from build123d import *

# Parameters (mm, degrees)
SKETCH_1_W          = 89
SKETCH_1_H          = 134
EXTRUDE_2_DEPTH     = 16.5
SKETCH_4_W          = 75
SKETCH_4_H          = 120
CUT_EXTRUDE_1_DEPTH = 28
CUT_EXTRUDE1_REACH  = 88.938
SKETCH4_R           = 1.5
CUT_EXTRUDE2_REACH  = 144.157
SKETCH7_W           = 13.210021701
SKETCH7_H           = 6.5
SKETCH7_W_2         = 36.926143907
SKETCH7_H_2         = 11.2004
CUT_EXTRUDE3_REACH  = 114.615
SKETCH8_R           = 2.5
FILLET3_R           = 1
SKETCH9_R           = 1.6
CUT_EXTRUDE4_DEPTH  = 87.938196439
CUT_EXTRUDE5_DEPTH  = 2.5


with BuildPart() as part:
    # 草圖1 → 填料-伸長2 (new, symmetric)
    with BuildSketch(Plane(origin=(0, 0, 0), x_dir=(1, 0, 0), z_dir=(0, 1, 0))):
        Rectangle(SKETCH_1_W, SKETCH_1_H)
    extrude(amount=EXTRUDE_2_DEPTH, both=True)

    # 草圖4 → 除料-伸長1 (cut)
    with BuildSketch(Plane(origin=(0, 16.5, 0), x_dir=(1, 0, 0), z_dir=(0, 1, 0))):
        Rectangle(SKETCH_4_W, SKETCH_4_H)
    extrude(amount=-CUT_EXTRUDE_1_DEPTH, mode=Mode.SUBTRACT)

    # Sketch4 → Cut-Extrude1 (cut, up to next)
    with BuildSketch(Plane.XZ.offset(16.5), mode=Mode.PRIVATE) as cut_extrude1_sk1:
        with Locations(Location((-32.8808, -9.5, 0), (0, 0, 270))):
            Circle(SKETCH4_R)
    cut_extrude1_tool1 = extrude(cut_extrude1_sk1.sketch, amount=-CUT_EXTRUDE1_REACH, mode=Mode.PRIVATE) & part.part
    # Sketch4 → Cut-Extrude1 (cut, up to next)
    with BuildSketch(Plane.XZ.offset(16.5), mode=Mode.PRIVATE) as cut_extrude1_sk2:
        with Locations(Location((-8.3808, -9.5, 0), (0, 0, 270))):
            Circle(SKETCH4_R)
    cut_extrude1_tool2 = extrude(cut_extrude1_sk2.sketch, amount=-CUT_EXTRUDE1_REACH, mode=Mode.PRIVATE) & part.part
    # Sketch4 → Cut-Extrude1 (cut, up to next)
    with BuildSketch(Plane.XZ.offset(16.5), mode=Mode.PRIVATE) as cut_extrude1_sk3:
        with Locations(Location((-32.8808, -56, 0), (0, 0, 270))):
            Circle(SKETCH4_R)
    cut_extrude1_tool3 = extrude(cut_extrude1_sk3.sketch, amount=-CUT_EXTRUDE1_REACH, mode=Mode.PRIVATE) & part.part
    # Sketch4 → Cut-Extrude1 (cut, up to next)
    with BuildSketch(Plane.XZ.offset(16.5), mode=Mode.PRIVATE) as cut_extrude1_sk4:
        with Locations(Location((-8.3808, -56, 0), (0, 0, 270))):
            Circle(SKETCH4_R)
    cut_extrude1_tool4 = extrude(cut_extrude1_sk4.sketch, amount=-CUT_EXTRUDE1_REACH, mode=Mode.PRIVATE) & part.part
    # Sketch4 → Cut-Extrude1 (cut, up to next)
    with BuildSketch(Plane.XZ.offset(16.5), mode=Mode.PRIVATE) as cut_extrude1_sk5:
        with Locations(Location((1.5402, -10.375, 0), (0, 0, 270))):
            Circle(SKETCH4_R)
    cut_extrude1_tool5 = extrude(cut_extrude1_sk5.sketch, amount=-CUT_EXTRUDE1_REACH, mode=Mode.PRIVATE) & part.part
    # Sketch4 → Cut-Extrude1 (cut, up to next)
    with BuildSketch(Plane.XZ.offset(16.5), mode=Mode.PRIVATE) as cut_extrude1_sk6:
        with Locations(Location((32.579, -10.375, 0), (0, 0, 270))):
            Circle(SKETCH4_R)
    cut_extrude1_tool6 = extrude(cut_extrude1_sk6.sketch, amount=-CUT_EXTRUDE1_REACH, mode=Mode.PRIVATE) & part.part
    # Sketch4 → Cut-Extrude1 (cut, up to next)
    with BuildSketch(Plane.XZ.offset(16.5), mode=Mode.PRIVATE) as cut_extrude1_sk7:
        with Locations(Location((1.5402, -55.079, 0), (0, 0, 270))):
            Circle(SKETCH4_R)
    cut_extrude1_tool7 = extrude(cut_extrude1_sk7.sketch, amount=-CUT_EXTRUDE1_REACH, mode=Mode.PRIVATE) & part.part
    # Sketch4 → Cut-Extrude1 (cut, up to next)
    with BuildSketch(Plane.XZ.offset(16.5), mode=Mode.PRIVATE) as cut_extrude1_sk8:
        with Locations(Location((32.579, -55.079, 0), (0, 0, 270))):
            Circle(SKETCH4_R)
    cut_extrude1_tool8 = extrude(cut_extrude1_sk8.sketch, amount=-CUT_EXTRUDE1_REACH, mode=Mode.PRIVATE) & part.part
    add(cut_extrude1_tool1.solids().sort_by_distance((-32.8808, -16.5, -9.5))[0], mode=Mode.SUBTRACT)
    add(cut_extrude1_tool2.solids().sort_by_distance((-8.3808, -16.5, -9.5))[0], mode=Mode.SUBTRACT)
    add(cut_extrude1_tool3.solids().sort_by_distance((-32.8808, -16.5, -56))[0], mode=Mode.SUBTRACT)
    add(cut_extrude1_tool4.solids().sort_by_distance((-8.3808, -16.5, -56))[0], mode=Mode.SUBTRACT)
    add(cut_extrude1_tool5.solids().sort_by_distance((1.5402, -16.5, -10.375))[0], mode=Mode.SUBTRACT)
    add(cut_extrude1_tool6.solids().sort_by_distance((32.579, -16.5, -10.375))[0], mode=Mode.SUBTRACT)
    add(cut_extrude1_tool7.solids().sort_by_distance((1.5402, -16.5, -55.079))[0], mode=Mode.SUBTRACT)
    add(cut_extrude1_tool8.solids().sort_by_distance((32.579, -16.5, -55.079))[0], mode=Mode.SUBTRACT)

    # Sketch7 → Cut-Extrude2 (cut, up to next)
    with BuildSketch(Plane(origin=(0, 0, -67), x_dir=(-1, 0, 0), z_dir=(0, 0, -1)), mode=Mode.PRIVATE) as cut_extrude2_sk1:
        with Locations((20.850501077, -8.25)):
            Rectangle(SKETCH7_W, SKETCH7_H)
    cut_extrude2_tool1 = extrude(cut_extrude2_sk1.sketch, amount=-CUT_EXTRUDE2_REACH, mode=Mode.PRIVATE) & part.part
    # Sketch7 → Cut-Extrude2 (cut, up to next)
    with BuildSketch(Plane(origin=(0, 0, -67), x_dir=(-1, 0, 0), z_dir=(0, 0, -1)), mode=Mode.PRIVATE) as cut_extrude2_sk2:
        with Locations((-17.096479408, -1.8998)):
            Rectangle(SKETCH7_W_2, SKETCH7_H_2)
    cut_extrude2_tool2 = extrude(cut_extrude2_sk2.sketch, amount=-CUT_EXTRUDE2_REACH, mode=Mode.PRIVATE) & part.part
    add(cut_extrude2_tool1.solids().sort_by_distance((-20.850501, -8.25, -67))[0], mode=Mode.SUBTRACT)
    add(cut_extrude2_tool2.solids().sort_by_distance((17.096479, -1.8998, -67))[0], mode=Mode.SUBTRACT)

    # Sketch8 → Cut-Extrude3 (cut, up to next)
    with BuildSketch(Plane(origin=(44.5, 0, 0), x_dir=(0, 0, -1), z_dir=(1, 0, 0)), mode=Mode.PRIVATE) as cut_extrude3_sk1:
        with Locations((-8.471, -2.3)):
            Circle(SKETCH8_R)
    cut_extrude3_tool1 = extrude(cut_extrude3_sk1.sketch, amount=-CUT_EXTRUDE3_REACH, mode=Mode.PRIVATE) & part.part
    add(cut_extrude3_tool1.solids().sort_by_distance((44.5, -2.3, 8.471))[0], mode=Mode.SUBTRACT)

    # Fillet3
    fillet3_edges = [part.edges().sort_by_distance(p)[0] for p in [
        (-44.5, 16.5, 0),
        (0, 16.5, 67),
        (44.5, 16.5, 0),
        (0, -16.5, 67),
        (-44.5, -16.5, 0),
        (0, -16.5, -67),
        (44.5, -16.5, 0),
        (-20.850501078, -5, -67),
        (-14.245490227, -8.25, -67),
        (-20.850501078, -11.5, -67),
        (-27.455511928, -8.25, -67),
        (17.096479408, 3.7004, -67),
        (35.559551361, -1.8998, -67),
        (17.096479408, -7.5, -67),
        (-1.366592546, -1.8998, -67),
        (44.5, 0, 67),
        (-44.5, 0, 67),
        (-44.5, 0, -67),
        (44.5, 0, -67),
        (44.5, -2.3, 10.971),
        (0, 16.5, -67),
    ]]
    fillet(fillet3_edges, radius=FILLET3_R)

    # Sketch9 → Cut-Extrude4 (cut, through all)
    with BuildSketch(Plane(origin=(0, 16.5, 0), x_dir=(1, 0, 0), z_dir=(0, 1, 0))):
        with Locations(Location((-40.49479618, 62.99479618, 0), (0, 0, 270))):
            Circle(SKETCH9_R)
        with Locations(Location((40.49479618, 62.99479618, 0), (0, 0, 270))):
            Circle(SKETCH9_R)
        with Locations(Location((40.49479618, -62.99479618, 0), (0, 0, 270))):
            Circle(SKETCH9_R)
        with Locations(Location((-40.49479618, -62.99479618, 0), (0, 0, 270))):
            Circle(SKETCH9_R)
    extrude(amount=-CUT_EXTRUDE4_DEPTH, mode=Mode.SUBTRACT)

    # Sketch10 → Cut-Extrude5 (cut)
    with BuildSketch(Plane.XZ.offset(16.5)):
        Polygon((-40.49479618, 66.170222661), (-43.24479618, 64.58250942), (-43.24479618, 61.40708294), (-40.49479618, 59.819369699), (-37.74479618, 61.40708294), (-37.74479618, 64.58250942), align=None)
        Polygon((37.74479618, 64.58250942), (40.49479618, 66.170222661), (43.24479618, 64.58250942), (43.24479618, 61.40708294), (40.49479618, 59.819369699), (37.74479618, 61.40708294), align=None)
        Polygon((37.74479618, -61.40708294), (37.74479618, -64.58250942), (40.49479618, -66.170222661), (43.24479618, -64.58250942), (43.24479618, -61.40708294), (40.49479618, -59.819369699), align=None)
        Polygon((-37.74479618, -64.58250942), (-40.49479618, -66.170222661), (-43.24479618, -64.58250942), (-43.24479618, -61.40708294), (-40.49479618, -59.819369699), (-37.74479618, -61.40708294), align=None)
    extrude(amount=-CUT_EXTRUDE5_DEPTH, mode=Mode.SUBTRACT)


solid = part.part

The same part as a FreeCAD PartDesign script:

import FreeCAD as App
import Part
import Sketcher

V = App.Vector
Q = App.Units.Quantity


def edges_at(feature, points):
    """Names of the edges that pass closest to the given points."""
    edges = feature.Shape.Edges
    near = lambda p: min(range(len(edges)), key=lambda i: edges[i].distToShape(Part.Vertex(*p))[0])
    return sorted({f"Edge{near(p) + 1}" for p in points})


def add_polygon(sketch, points):
    """Adds a closed chain of lines whose ends are joined by coincident constraints."""
    first, n = sketch.GeometryCount, len(points)
    for a, b in zip(points, points[1:] + points[:1]):
        sketch.addGeometry(Part.LineSegment(App.Vector(*a, 0), App.Vector(*b, 0)), False)
    for i in range(n):
        sketch.addConstraint(Sketcher.Constraint("Coincident", first + i, 2, first + (i + 1) % n, 1))

doc = App.newDocument("Part")
body = doc.addObject("PartDesign::Body", "Body")

sketch1 = doc.addObject("Sketcher::SketchObject", "Sketch")
body.addObject(sketch1)
sketch1.AttachmentSupport = (doc.XZ_Plane, [""])
sketch1.MapMode = "FlatFace"
add_polygon(sketch1, [(-44.5, -67), (-44.5, 67), (44.5, 67), (44.5, -67)])
sketch1.addConstraint(Sketcher.Constraint("Vertical", 0))
sketch1.addConstraint(Sketcher.Constraint("Horizontal", 1))
sketch1.addConstraint(Sketcher.Constraint("Vertical", 2))
sketch1.addConstraint(Sketcher.Constraint("Horizontal", 3))
sketch1.addConstraint(Sketcher.Constraint("Symmetric", 0, 2, 2, 2, -1, 1))
sketch1.addConstraint(Sketcher.Constraint("DistanceX", 1, 1, 1, 2, 89.0))
sketch1.addConstraint(Sketcher.Constraint("DistanceY", 0, 1, 0, 2, 134.0))
pad1 = doc.addObject("PartDesign::Pad", "Pad")
body.addObject(pad1)
pad1.Profile = sketch1
pad1.Length = 33
pad1.Midplane = True

sketch2 = doc.addObject("Sketcher::SketchObject", "Sketch001")
body.addObject(sketch2)
sketch2.AttachmentSupport = (doc.XZ_Plane, [""])
sketch2.MapMode = "FlatFace"
sketch2.AttachmentOffset = App.Placement(V(0, 0, -16.5), App.Rotation())
add_polygon(sketch2, [(-37.5, -60), (-37.5, 60), (37.5, 60), (37.5, -60)])
sketch2.addConstraint(Sketcher.Constraint("Vertical", 0))
sketch2.addConstraint(Sketcher.Constraint("Horizontal", 1))
sketch2.addConstraint(Sketcher.Constraint("Vertical", 2))
sketch2.addConstraint(Sketcher.Constraint("Horizontal", 3))
sketch2.addConstraint(Sketcher.Constraint("Symmetric", 0, 2, 2, 2, -1, 1))
sketch2.addConstraint(Sketcher.Constraint("DistanceX", 1, 1, 1, 2, 75.0))
sketch2.addConstraint(Sketcher.Constraint("DistanceY", 0, 1, 0, 2, 120.0))
pocket1 = doc.addObject("PartDesign::Pocket", "Pocket")
body.addObject(pocket1)
pocket1.Profile = sketch2
pocket1.Length = 28
pocket1.Reversed = True

sketch3 = doc.addObject("Sketcher::SketchObject", "Sketch002")
body.addObject(sketch3)
sketch3.AttachmentSupport = (doc.XZ_Plane, [""])
sketch3.MapMode = "FlatFace"
sketch3.AttachmentOffset = App.Placement(V(0, 0, 16.5), App.Rotation())
sketch3.addGeometry(Part.Circle(V(-32.8808, -9.5, 0), V(0, 0, 1), 1.5), False)
sketch3.addConstraint(Sketcher.Constraint("Diameter", 0, 3.0))
sketch3.addConstraint(Sketcher.Constraint("DistanceY", 0, 3, -1, 1, 9.5))
sketch3.addConstraint(Sketcher.Constraint("DistanceX", 0, 3, -1, 1, 32.8808))
pocket2 = doc.addObject("PartDesign::Pocket", "Pocket001")
body.addObject(pocket2)
pocket2.Profile = sketch3
pocket2.Type = "UpToFirst"

sketch4 = doc.addObject("Sketcher::SketchObject", "Sketch003")
body.addObject(sketch4)
sketch4.AttachmentSupport = (doc.XZ_Plane, [""])
sketch4.MapMode = "FlatFace"
sketch4.AttachmentOffset = App.Placement(V(0, 0, 16.5), App.Rotation())
sketch4.addGeometry(Part.Circle(V(-8.3808, -9.5, 0), V(0, 0, 1), 1.5), False)
sketch4.addConstraint(Sketcher.Constraint("Diameter", 0, 3.0))
sketch4.addConstraint(Sketcher.Constraint("DistanceY", 0, 3, -1, 1, 9.5))
sketch4.addConstraint(Sketcher.Constraint("DistanceX", 0, 3, -1, 1, 8.3808))
pocket3 = doc.addObject("PartDesign::Pocket", "Pocket002")
body.addObject(pocket3)
pocket3.Profile = sketch4
pocket3.Type = "UpToFirst"

sketch5 = doc.addObject("Sketcher::SketchObject", "Sketch004")
body.addObject(sketch5)
sketch5.AttachmentSupport = (doc.XZ_Plane, [""])
sketch5.MapMode = "FlatFace"
sketch5.AttachmentOffset = App.Placement(V(0, 0, 16.5), App.Rotation())
sketch5.addGeometry(Part.Circle(V(-32.8808, -56, 0), V(0, 0, 1), 1.5), False)
sketch5.addConstraint(Sketcher.Constraint("Diameter", 0, 3.0))
sketch5.addConstraint(Sketcher.Constraint("DistanceY", 0, 3, -1, 1, 56.0))
sketch5.addConstraint(Sketcher.Constraint("DistanceX", 0, 3, -1, 1, 32.8808))
pocket4 = doc.addObject("PartDesign::Pocket", "Pocket003")
body.addObject(pocket4)
pocket4.Profile = sketch5
pocket4.Type = "UpToFirst"

sketch6 = doc.addObject("Sketcher::SketchObject", "Sketch005")
body.addObject(sketch6)
sketch6.AttachmentSupport = (doc.XZ_Plane, [""])
sketch6.MapMode = "FlatFace"
sketch6.AttachmentOffset = App.Placement(V(0, 0, 16.5), App.Rotation())
sketch6.addGeometry(Part.Circle(V(-8.3808, -56, 0), V(0, 0, 1), 1.5), False)
sketch6.addConstraint(Sketcher.Constraint("Diameter", 0, 3.0))
sketch6.addConstraint(Sketcher.Constraint("DistanceY", 0, 3, -1, 1, 56.0))
sketch6.addConstraint(Sketcher.Constraint("DistanceX", 0, 3, -1, 1, 8.3808))
pocket5 = doc.addObject("PartDesign::Pocket", "Pocket004")
body.addObject(pocket5)
pocket5.Profile = sketch6
pocket5.Type = "UpToFirst"

sketch7 = doc.addObject("Sketcher::SketchObject", "Sketch006")
body.addObject(sketch7)
sketch7.AttachmentSupport = (doc.XZ_Plane, [""])
sketch7.MapMode = "FlatFace"
sketch7.AttachmentOffset = App.Placement(V(0, 0, 16.5), App.Rotation())
sketch7.addGeometry(Part.Circle(V(1.5402, -10.375, 0), V(0, 0, 1), 1.5), False)
sketch7.addConstraint(Sketcher.Constraint("Diameter", 0, 3.0))
sketch7.addConstraint(Sketcher.Constraint("DistanceY", 0, 3, -1, 1, 10.375))
sketch7.addConstraint(Sketcher.Constraint("DistanceX", -1, 1, 0, 3, 1.5402))
pocket6 = doc.addObject("PartDesign::Pocket", "Pocket005")
body.addObject(pocket6)
pocket6.Profile = sketch7
pocket6.Type = "UpToFirst"

sketch8 = doc.addObject("Sketcher::SketchObject", "Sketch007")
body.addObject(sketch8)
sketch8.AttachmentSupport = (doc.XZ_Plane, [""])
sketch8.MapMode = "FlatFace"
sketch8.AttachmentOffset = App.Placement(V(0, 0, 16.5), App.Rotation())
sketch8.addGeometry(Part.Circle(V(32.579, -10.375, 0), V(0, 0, 1), 1.5), False)
sketch8.addConstraint(Sketcher.Constraint("Diameter", 0, 3.0))
sketch8.addConstraint(Sketcher.Constraint("DistanceX", -1, 1, 0, 3, 32.579))
sketch8.addConstraint(Sketcher.Constraint("DistanceY", 0, 3, -1, 1, 10.375))
pocket7 = doc.addObject("PartDesign::Pocket", "Pocket006")
body.addObject(pocket7)
pocket7.Profile = sketch8
pocket7.Type = "UpToFirst"

sketch9 = doc.addObject("Sketcher::SketchObject", "Sketch008")
body.addObject(sketch9)
sketch9.AttachmentSupport = (doc.XZ_Plane, [""])
sketch9.MapMode = "FlatFace"
sketch9.AttachmentOffset = App.Placement(V(0, 0, 16.5), App.Rotation())
sketch9.addGeometry(Part.Circle(V(1.5402, -55.079, 0), V(0, 0, 1), 1.5), False)
sketch9.addConstraint(Sketcher.Constraint("Diameter", 0, 3.0))
sketch9.addConstraint(Sketcher.Constraint("DistanceY", 0, 3, -1, 1, 55.079))
sketch9.addConstraint(Sketcher.Constraint("DistanceX", -1, 1, 0, 3, 1.5402))
pocket8 = doc.addObject("PartDesign::Pocket", "Pocket007")
body.addObject(pocket8)
pocket8.Profile = sketch9
pocket8.Type = "UpToFirst"

sketch10 = doc.addObject("Sketcher::SketchObject", "Sketch009")
body.addObject(sketch10)
sketch10.AttachmentSupport = (doc.XZ_Plane, [""])
sketch10.MapMode = "FlatFace"
sketch10.AttachmentOffset = App.Placement(V(0, 0, 16.5), App.Rotation())
sketch10.addGeometry(Part.Circle(V(32.579, -55.079, 0), V(0, 0, 1), 1.5), False)
sketch10.addConstraint(Sketcher.Constraint("Diameter", 0, 3.0))
sketch10.addConstraint(Sketcher.Constraint("DistanceX", -1, 1, 0, 3, 32.579))
sketch10.addConstraint(Sketcher.Constraint("DistanceY", 0, 3, -1, 1, 55.079))
pocket9 = doc.addObject("PartDesign::Pocket", "Pocket008")
body.addObject(pocket9)
pocket9.Profile = sketch10
pocket9.Type = "UpToFirst"

sketch11 = doc.addObject("Sketcher::SketchObject", "Sketch010")
body.addObject(sketch11)
sketch11.AttachmentSupport = (doc.XY_Plane, [""])
sketch11.MapMode = "FlatFace"
sketch11.AttachmentOffset = App.Placement(V(0, 0, -67), App.Rotation())
add_polygon(sketch11, [(-14.24549, -5), (-14.24549, -11.5), (-27.455512, -11.5), (-27.455512, -5)])
sketch11.addConstraint(Sketcher.Constraint("Vertical", 0))
sketch11.addConstraint(Sketcher.Constraint("Horizontal", 1))
sketch11.addConstraint(Sketcher.Constraint("Vertical", 2))
sketch11.addConstraint(Sketcher.Constraint("Horizontal", 3))
sketch11.addConstraint(Sketcher.Constraint("DistanceY", 0, 2, 0, 1, 6.5))
sketch11.addConstraint(Sketcher.Constraint("DistanceY", 2, 2, -1, 1, 5.0))
sketch11.addConstraint(Sketcher.Constraint("DistanceX", 1, 2, 1, 1, 13.210022))
sketch11.addConstraint(Sketcher.Constraint("DistanceX", 0, 2, -1, 1, 14.24549))
pocket10 = doc.addObject("PartDesign::Pocket", "Pocket009")
body.addObject(pocket10)
pocket10.Profile = sketch11
pocket10.Type = "UpToFirst"
pocket10.Reversed = True

sketch12 = doc.addObject("Sketcher::SketchObject", "Sketch011")
body.addObject(sketch12)
sketch12.AttachmentSupport = (doc.XY_Plane, [""])
sketch12.MapMode = "FlatFace"
sketch12.AttachmentOffset = App.Placement(V(0, 0, -67), App.Rotation())
add_polygon(sketch12, [(35.559551, 3.7004), (35.559551, -7.5), (-1.366593, -7.5), (-1.366593, 3.7004)])
sketch12.addConstraint(Sketcher.Constraint("Vertical", 0))
sketch12.addConstraint(Sketcher.Constraint("Horizontal", 1))
sketch12.addConstraint(Sketcher.Constraint("Vertical", 2))
sketch12.addConstraint(Sketcher.Constraint("Horizontal", 3))
sketch12.addConstraint(Sketcher.Constraint("DistanceY", 0, 2, -1, 1, 7.5))
sketch12.addConstraint(Sketcher.Constraint("DistanceY", 0, 2, 0, 1, 11.2004))
sketch12.addConstraint(Sketcher.Constraint("DistanceX", 1, 2, 1, 1, 36.926144))
sketch12.addConstraint(Sketcher.Constraint("DistanceX", -1, 1, 0, 2, 35.559551))
pocket11 = doc.addObject("PartDesign::Pocket", "Pocket010")
body.addObject(pocket11)
pocket11.Profile = sketch12
pocket11.Type = "UpToFirst"
pocket11.Reversed = True

sketch13 = doc.addObject("Sketcher::SketchObject", "Sketch012")
body.addObject(sketch13)
sketch13.AttachmentSupport = (doc.YZ_Plane, [""])
sketch13.MapMode = "FlatFace"
sketch13.AttachmentOffset = App.Placement(V(0, 0, 44.5), App.Rotation())
sketch13.addGeometry(Part.Circle(V(-2.3, 8.471, 0), V(0, 0, 1), 2.5), False)
sketch13.addConstraint(Sketcher.Constraint("Diameter", 0, 5.0))
sketch13.addConstraint(Sketcher.Constraint("DistanceX", 0, 3, -1, 1, 2.3))
sketch13.addConstraint(Sketcher.Constraint("DistanceY", -1, 1, 0, 3, 8.471))
pocket12 = doc.addObject("PartDesign::Pocket", "Pocket011")
body.addObject(pocket12)
pocket12.Profile = sketch13
pocket12.Type = "UpToFirst"
doc.recompute()

fillet = doc.addObject("PartDesign::Fillet", "Fillet")
body.addObject(fillet)
fillet.Base = (pocket12, edges_at(pocket12, [
    (-44.5, 16.5, 0),
    (0, 16.5, 67),
    (44.5, 16.5, 0),
    (0, -16.5, 67),
    (-44.5, -16.5, 0),
    (0, -16.5, -67),
    (44.5, -16.5, 0),
    (-20.851, -5, -67),
    (-14.245, -8.25, -67),
    (-20.851, -11.5, -67),
    (-27.456, -8.25, -67),
    (17.096, 3.7, -67),
    (35.56, -1.9, -67),
    (17.096, -7.5, -67),
    (-1.367, -1.9, -67),
    (44.5, 0, 67),
    (-44.5, 0, 67),
    (-44.5, 0, -67),
    (44.5, 0, -67),
    (44.5, -2.3, 10.971),
    (0, 16.5, -67),
]))
fillet.Radius = 1

sketch14 = doc.addObject("Sketcher::SketchObject", "Sketch013")
body.addObject(sketch14)
sketch14.AttachmentSupport = (doc.XZ_Plane, [""])
sketch14.MapMode = "FlatFace"
sketch14.AttachmentOffset = App.Placement(V(0, 0, -16.5), App.Rotation())
sketch14.addGeometry(Part.Circle(V(-40.494796, -62.994796, 0), V(0, 0, 1), 1.6), False)
sketch14.addGeometry(Part.Circle(V(40.494796, -62.994796, 0), V(0, 0, 1), 1.6), False)
sketch14.addGeometry(Part.Circle(V(40.494796, 62.994796, 0), V(0, 0, 1), 1.6), False)
sketch14.addGeometry(Part.Circle(V(-40.494796, 62.994796, 0), V(0, 0, 1), 1.6), False)
sketch14.addConstraint(Sketcher.Constraint("Equal", 0, 1))
sketch14.addConstraint(Sketcher.Constraint("Equal", 1, 2))
sketch14.addConstraint(Sketcher.Constraint("Equal", 2, 3))
sketch14.addConstraint(Sketcher.Constraint("Symmetric", 0, 3, 2, 3, -1, 1))
sketch14.addConstraint(Sketcher.Constraint("Symmetric", 1, 3, 3, 3, -1, 1))
sketch14.addConstraint(Sketcher.Constraint("Symmetric", 0, 3, 1, 3, -2))
sketch14.addConstraint(Sketcher.Constraint("Diameter", 0, 3.2))
sketch14.addConstraint(Sketcher.Constraint("DistanceX", 0, 3, -1, 1, 40.494796))
sketch14.addConstraint(Sketcher.Constraint("DistanceY", 0, 3, -1, 1, 62.994796))
pocket13 = doc.addObject("PartDesign::Pocket", "Pocket012")
body.addObject(pocket13)
pocket13.Profile = sketch14
pocket13.Type = "ThroughAll"
pocket13.Reversed = True

sketch15 = doc.addObject("Sketcher::SketchObject", "Sketch014")
body.addObject(sketch15)
sketch15.AttachmentSupport = (doc.XZ_Plane, [""])
sketch15.MapMode = "FlatFace"
sketch15.AttachmentOffset = App.Placement(V(0, 0, 16.5), App.Rotation())
add_polygon(sketch15, [(-40.494796, 66.170223), (-43.244796, 64.582509), (-43.244796, 61.407083), (-40.494796, 59.81937), (-37.744796, 61.407083), (-37.744796, 64.582509)])
add_polygon(sketch15, [(40.494796, 66.170223), (37.744796, 64.582509), (37.744796, 61.407083), (40.494796, 59.81937), (43.244796, 61.407083), (43.244796, 64.582509)])
add_polygon(sketch15, [(37.744796, -61.407083), (37.744796, -64.582509), (40.494796, -66.170223), (43.244796, -64.582509), (43.244796, -61.407083), (40.494796, -59.81937)])
add_polygon(sketch15, [(-40.494796, -66.170223), (-37.744796, -64.582509), (-37.744796, -61.407083), (-40.494796, -59.81937), (-43.244796, -61.407083), (-43.244796, -64.582509)])
sketch15.addConstraint(Sketcher.Constraint("Vertical", 1))
sketch15.addConstraint(Sketcher.Constraint("Vertical", 4))
sketch15.addConstraint(Sketcher.Constraint("Vertical", 7))
sketch15.addConstraint(Sketcher.Constraint("Vertical", 10))
sketch15.addConstraint(Sketcher.Constraint("Vertical", 12))
sketch15.addConstraint(Sketcher.Constraint("Vertical", 15))
sketch15.addConstraint(Sketcher.Constraint("Vertical", 19))
sketch15.addConstraint(Sketcher.Constraint("Vertical", 22))
sketch15.addConstraint(Sketcher.Constraint("Symmetric", 4, 2, 12, 2, -1, 1))
sketch15.addConstraint(Sketcher.Constraint("Symmetric", 5, 2, 13, 2, -1, 1))
sketch15.addConstraint(Sketcher.Constraint("Symmetric", 0, 2, 14, 2, -1, 1))
sketch15.addConstraint(Sketcher.Constraint("Symmetric", 2, 2, 16, 2, -1, 1))
sketch15.addConstraint(Sketcher.Constraint("Symmetric", 6, 2, 18, 2, -1, 1))
sketch15.addConstraint(Sketcher.Constraint("Symmetric", 8, 2, 20, 2, -1, 1))
sketch15.addConstraint(Sketcher.Constraint("Symmetric", 9, 2, 21, 2, -1, 1))
sketch15.addConstraint(Sketcher.Constraint("Symmetric", 11, 2, 23, 2, -1, 1))
sketch15.addConstraint(Sketcher.Constraint("Symmetric", 4, 2, 6, 2, -2))
sketch15.addConstraint(Sketcher.Constraint("Symmetric", 2, 2, 8, 2, -2))
sketch15.addConstraint(Sketcher.Constraint("Symmetric", 1, 2, 9, 2, -2))
sketch15.addConstraint(Sketcher.Constraint("Symmetric", 5, 2, 11, 2, -2))
sketch15.addConstraint(Sketcher.Constraint("Parallel", 0, 3))
sketch15.addConstraint(Sketcher.Constraint("Parallel", 2, 5))
sketch15.addConstraint(Sketcher.Constraint("Parallel", 3, 6))
sketch15.addConstraint(Sketcher.Constraint("Parallel", 5, 8))
sketch15.addConstraint(Sketcher.Constraint("Parallel", 8, 11))
sketch15.addConstraint(Sketcher.Constraint("Parallel", 13, 16))
sketch15.addConstraint(Sketcher.Constraint("Parallel", 14, 17))
sketch15.addConstraint(Sketcher.Constraint("Parallel", 16, 20))
sketch15.addConstraint(Sketcher.Constraint("Parallel", 20, 23))
sketch15.addConstraint(Sketcher.Constraint("Horizontal", 1, 2, 3, 2))
sketch15.addConstraint(Sketcher.Constraint("Horizontal", 0, 2, 4, 2))
sketch15.addConstraint(Sketcher.Constraint("Angle", 0, Q("-150 deg")))
sketch15.addConstraint(Sketcher.Constraint("DistanceX", 1, 2, 3, 2, 5.5))
sketch15.addConstraint(Sketcher.Constraint("DistanceY", 1, 2, 1, 1, 3.175426))
sketch15.addConstraint(Sketcher.Constraint("DistanceY", -1, 1, 0, 2, 64.582509))
sketch15.addConstraint(Sketcher.Constraint("DistanceX", 0, 2, -1, 1, 43.244796))
pocket14 = doc.addObject("PartDesign::Pocket", "Pocket013")
body.addObject(pocket14)
pocket14.Profile = sketch15
pocket14.Length = 2.5

doc.recompute()
